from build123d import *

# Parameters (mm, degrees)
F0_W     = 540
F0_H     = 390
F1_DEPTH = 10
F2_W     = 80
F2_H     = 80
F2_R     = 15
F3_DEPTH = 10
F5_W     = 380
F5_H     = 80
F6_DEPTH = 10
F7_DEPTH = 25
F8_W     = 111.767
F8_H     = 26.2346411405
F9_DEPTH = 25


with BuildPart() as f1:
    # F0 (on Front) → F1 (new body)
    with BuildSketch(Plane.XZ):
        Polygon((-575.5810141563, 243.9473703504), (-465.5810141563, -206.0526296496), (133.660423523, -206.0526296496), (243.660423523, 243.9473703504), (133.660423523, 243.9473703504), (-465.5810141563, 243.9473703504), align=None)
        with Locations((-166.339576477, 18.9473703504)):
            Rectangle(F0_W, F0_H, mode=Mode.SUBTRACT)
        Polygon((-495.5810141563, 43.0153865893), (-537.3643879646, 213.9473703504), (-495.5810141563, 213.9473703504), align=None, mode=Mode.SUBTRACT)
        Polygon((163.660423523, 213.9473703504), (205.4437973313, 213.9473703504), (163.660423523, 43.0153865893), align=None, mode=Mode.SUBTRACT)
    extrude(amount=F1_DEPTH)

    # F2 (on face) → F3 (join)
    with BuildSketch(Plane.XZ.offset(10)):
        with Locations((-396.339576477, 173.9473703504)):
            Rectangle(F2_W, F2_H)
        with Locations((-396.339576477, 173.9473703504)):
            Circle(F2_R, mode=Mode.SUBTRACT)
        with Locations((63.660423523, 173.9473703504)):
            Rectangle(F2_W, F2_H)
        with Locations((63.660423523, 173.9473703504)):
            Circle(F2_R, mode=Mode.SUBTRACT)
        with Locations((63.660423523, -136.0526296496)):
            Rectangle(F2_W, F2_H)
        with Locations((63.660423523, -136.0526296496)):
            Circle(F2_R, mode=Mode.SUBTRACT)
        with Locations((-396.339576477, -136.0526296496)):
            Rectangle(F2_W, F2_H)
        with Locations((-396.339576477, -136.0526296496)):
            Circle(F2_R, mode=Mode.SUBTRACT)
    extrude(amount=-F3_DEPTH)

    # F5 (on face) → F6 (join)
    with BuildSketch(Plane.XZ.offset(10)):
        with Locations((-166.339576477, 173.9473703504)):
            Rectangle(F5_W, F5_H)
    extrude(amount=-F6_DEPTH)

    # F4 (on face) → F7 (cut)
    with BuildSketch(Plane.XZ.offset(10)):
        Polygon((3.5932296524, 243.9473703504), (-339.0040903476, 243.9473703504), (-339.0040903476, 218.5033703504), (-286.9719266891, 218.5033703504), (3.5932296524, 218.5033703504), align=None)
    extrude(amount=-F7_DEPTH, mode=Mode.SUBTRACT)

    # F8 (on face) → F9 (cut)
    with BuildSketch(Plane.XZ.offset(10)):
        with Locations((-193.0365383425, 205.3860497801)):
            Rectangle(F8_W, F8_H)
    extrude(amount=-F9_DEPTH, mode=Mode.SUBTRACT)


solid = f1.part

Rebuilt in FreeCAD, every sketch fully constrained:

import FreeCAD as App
import Part
import Sketcher

V = App.Vector


def add_polygon(sketch, points):
    """Adds a closed chain of lines whose ends are joined by coincident constraints."""
    first, n = sketch.GeometryCount, len(points)
    for a, b in zip(points, points[1:] + points[:1]):
        sketch.addGeometry(Part.LineSegment(App.Vector(*a, 0), App.Vector(*b, 0)), False)
    for i in range(n):
        sketch.addConstraint(Sketcher.Constraint("Coincident", first + i, 2, first + (i + 1) % n, 1))

doc = App.newDocument("Part")
params = doc.addObject("Spreadsheet::Sheet", "Params")
for row, (alias, value) in enumerate([
    ("sketch1_width", "540 mm"),
    ("sketch1_height", "390 mm"),
    ("pad1_length", "10 mm"),
    ("sketch2_diameter", "30 mm"),
    ("sketch2_width", "80 mm"),
    ("pad2_length", "10 mm"),
    ("sketch3_width", "380 mm"),
    ("sketch3_height", "80 mm"),
    ("pad3_length", "10 mm"),
    ("pocket1_length", "25 mm"),
    ("pocket2_length", "25 mm"),
], start=1):
    params.set(f"A{row}", alias)
    params.set(f"B{row}", "=" + value)
    params.setAlias(f"B{row}", alias)

body = doc.addObject("PartDesign::Body", "Body")

# Sketch on XZ plane
sketch1 = doc.addObject("Sketcher::SketchObject", "Sketch")
body.addObject(sketch1)
sketch1.AttachmentSupport = (doc.XZ_Plane, [""])
sketch1.MapMode = "FlatFace"
add_polygon(sketch1, [(-575.581014, 243.94737), (-465.581014, -206.05263), (133.660424, -206.05263), (243.660424, 243.94737)])  # lines 0-3
add_polygon(sketch1, [(103.660424, -176.05263), (-436.339576, -176.05263), (-436.339576, 213.94737), (103.660424, 213.94737)])  # lines 4-7
add_polygon(sketch1, [(-495.581014, 213.94737), (-495.581014, 43.015387), (-537.364388, 213.94737)])  # lines 8-10
add_polygon(sketch1, [(163.660424, 43.015387), (163.660424, 213.94737), (205.443797, 213.94737)])  # lines 11-13
sketch1.addConstraint([
    Sketcher.Constraint("Horizontal", 1),
    Sketcher.Constraint("Horizontal", 3),
    Sketcher.Constraint("Horizontal", 4),
    Sketcher.Constraint("Vertical", 5),
    Sketcher.Constraint("Horizontal", 6),
    Sketcher.Constraint("Vertical", 7),
    Sketcher.Constraint("Vertical", 8),
    Sketcher.Constraint("Horizontal", 10),
    Sketcher.Constraint("Vertical", 11),
    Sketcher.Constraint("Horizontal", 12),
    Sketcher.Constraint("Parallel", 0, 9),
    Sketcher.Constraint("Parallel", 2, 13),
    Sketcher.Constraint("Horizontal", 6, 2, 9, 2),
    Sketcher.Constraint("Horizontal", 10, 2, 11, 2),
    Sketcher.Constraint("Horizontal", 8, 2, 13, 2),
    Sketcher.Constraint("Equal", 10, 12),
    Sketcher.Constraint("DistanceX", 4, 2, 4, 1, 540.0),
    Sketcher.Constraint("DistanceY", 5, 1, 5, 2, 390.0),
    Sketcher.Constraint("DistanceX", 1, 2, 2, 2, 110.0),
    Sketcher.Constraint("DistanceY", 1, 2, 2, 2, 450.0),
    Sketcher.Constraint("DistanceY", 0, 2, 4, 2, 30.0),
    Sketcher.Constraint("DistanceX", 4, 2, 1, 2, 570.0),
    Sketcher.Constraint("DistanceX", 3, 2, 8, 2, 80.0),
    Sketcher.Constraint("DistanceX", 6, 2, 11, 2, 60.0),
    Sketcher.Constraint("Distance", 9, 175.96475),
    Sketcher.Constraint("DistanceX", 1, 1, 1, 2, 599.241438),
    Sketcher.Constraint("DistanceY", 0, 2, -1, 1, 206.05263),
    Sketcher.Constraint("DistanceX", 0, 2, -1, 1, 465.581014),
])
sketch1.setExpression("Constraints[30]", "Params.sketch1_width")
sketch1.setExpression("Constraints[31]", "Params.sketch1_height")
pad1 = doc.addObject("PartDesign::Pad", "Pad")
body.addObject(pad1)
pad1.Profile = sketch1
pad1.setExpression("Length", "Params.pad1_length")

# Sketch on XZ plane
sketch2 = doc.addObject("Sketcher::SketchObject", "Sketch001")
body.addObject(sketch2)
sketch2.AttachmentSupport = (doc.XZ_Plane, [""])
sketch2.MapMode = "FlatFace"
sketch2.AttachmentOffset = App.Placement(V(0, 0, 10), App.Rotation())
add_polygon(sketch2, [(-436.339576, 213.94737), (-436.339576, 133.94737), (-356.339576, 133.94737), (-356.339576, 213.94737)])  # lines 0-3
sketch2.addGeometry(Part.Circle(V(-396.339576, 173.94737, 0), V(0, 0, 1), 15), False)  # 4
add_polygon(sketch2, [(23.660424, 213.94737), (23.660424, 133.94737), (103.660424, 133.94737), (103.660424, 213.94737)])  # lines 5-8
sketch2.addGeometry(Part.Circle(V(63.660424, 173.94737, 0), V(0, 0, 1), 15), False)  # 9
add_polygon(sketch2, [(23.660424, -96.05263), (23.660424, -176.05263), (103.660424, -176.05263), (103.660424, -96.05263)])  # lines 10-13
sketch2.addGeometry(Part.Circle(V(63.660424, -136.05263, 0), V(0, 0, 1), 15), False)  # 14
add_polygon(sketch2, [(-436.339576, -96.05263), (-436.339576, -176.05263), (-356.339576, -176.05263), (-356.339576, -96.05263)])  # lines 15-18
sketch2.addGeometry(Part.Circle(V(-396.339576, -136.05263, 0), V(0, 0, 1), 15), False)  # 19
sketch2.addConstraint([
    Sketcher.Constraint("Vertical", 0),
    Sketcher.Constraint("Horizontal", 1),
    Sketcher.Constraint("Vertical", 2),
    Sketcher.Constraint("Horizontal", 3),
    Sketcher.Constraint("Vertical", 5),
    Sketcher.Constraint("Horizontal", 6),
    Sketcher.Constraint("Vertical", 7),
    Sketcher.Constraint("Horizontal", 8),
    Sketcher.Constraint("Vertical", 10),
    Sketcher.Constraint("Horizontal", 11),
    Sketcher.Constraint("Vertical", 12),
    Sketcher.Constraint("Horizontal", 13),
    Sketcher.Constraint("Vertical", 15),
    Sketcher.Constraint("Horizontal", 16),
    Sketcher.Constraint("Vertical", 17),
    Sketcher.Constraint("Horizontal", 18),
    Sketcher.Constraint("Equal", 4, 9),
    Sketcher.Constraint("Equal", 9, 14),
    Sketcher.Constraint("Equal", 14, 19),
    Sketcher.Constraint("Horizontal", 4, 3, 9, 3),
    Sketcher.Constraint("Horizontal", 14, 3, 19, 3),
    Sketcher.Constraint("Horizontal", 1, 2, 5, 2),
    Sketcher.Constraint("Horizontal", 3, 2, 7, 2),
    Sketcher.Constraint("Horizontal", 11, 2, 15, 2),
    Sketcher.Constraint("Horizontal", 13, 2, 17, 2),
    Sketcher.Constraint("Vertical", 9, 3, 14, 3),
    Sketcher.Constraint("Vertical", 4, 3, 19, 3),
    Sketcher.Constraint("Vertical", 8, 2, 10, 2),
    Sketcher.Constraint("Vertical", 7, 2, 11, 2),
    Sketcher.Constraint("Vertical", 3, 2, 15, 2),
    Sketcher.Constraint("Vertical", 2, 2, 16, 2),
    Sketcher.Constraint("Equal", 3, 6),
    Sketcher.Constraint("Equal", 18, 0),
    Sketcher.Constraint("Equal", 7, 10),
    Sketcher.Constraint("Diameter", 4, 30.0),
    Sketcher.Constraint("DistanceX", 1, 1, 1, 2, 80.0),
    Sketcher.Constraint("DistanceX", 4, 3, 9, 3, 460.0),
    Sketcher.Constraint("DistanceY", 14, 3, 9, 3, 310.0),
    Sketcher.Constraint("DistanceX", 0, 2, 4, 3, 40.0),
    Sketcher.Constraint("DistanceY", 0, 2, 4, 3, 40.0),
    Sketcher.Constraint("DistanceX", 5, 2, 9, 3, 40.0),
    Sketcher.Constraint("DistanceY", 10, 2, 14, 3, 40.0),
    Sketcher.Constraint("DistanceY", -1, 1, 4, 3, 173.94737),
    Sketcher.Constraint("DistanceX", 4, 3, -1, 1, 396.339576),
])
sketch2.setExpression("Constraints[50]", "Params.sketch2_diameter")
sketch2.setExpression("Constraints[51]", "Params.sketch2_width")
pad2 = doc.addObject("PartDesign::Pad", "Pad001")
body.addObject(pad2)
pad2.Profile = sketch2
pad2.setExpression("Length", "Params.pad2_length")
pad2.Reversed = True

# Sketch on XZ plane
sketch3 = doc.addObject("Sketcher::SketchObject", "Sketch002")
body.addObject(sketch3)
sketch3.AttachmentSupport = (doc.XZ_Plane, [""])
sketch3.MapMode = "FlatFace"
sketch3.AttachmentOffset = App.Placement(V(0, 0, 10), App.Rotation())
add_polygon(sketch3, [(-356.339576, 213.94737), (-356.339576, 133.94737), (23.660424, 133.94737), (23.660424, 213.94737)])  # lines 0-3
sketch3.addConstraint([
    Sketcher.Constraint("Vertical", 0),
    Sketcher.Constraint("Horizontal", 1),
    Sketcher.Constraint("Vertical", 2),
    Sketcher.Constraint("Horizontal", 3),
    Sketcher.Constraint("DistanceX", 1, 1, 1, 2, 380.0),
    Sketcher.Constraint("DistanceY", 0, 2, 0, 1, 80.0),
    Sketcher.Constraint("DistanceY", -1, 1, 0, 2, 133.94737),
    Sketcher.Constraint("DistanceX", 0, 2, -1, 1, 356.339576),
])
sketch3.setExpression("Constraints[8]", "Params.sketch3_width")
sketch3.setExpression("Constraints[9]", "Params.sketch3_height")
pad3 = doc.addObject("PartDesign::Pad", "Pad002")
body.addObject(pad3)
pad3.Profile = sketch3
pad3.setExpression("Length", "Params.pad3_length")
pad3.Reversed = True

# Sketch on XZ plane
sketch4 = doc.addObject("Sketcher::SketchObject", "Sketch003")
body.addObject(sketch4)
sketch4.AttachmentSupport = (doc.XZ_Plane, [""])
sketch4.MapMode = "FlatFace"
sketch4.AttachmentOffset = App.Placement(V(0, 0, 10), App.Rotation())
add_polygon(sketch4, [(3.59323, 243.94737), (-339.00409, 243.94737), (-339.00409, 218.50337), (3.59323, 218.50337)])  # lines 0-3
sketch4.addConstraint([
    Sketcher.Constraint("Horizontal", 0),
    Sketcher.Constraint("Vertical", 1),
    Sketcher.Constraint("Horizontal", 2),
    Sketcher.Constraint("Vertical", 3),
    Sketcher.Constraint("DistanceY", 1, 2, 1, 1, 25.444),
    Sketcher.Constraint("DistanceX", 0, 2, 0, 1, 342.59732),
    Sketcher.Constraint("DistanceX", 0, 2, -1, 1, 339.00409),
    Sketcher.Constraint("DistanceY", -1, 1, 0, 2, 243.94737),
])
pocket1 = doc.addObject("PartDesign::Pocket", "Pocket")
body.addObject(pocket1)
pocket1.Profile = sketch4
pocket1.setExpression("Length", "Params.pocket1_length")

# Sketch on XZ plane
sketch5 = doc.addObject("Sketcher::SketchObject", "Sketch004")
body.addObject(sketch5)
sketch5.AttachmentSupport = (doc.XZ_Plane, [""])
sketch5.MapMode = "FlatFace"
sketch5.AttachmentOffset = App.Placement(V(0, 0, 10), App.Rotation())
add_polygon(sketch5, [(-248.920038, 218.50337), (-248.920038, 192.268729), (-137.153038, 192.268729), (-137.153038, 218.50337)])  # lines 0-3
sketch5.addConstraint([
    Sketcher.Constraint("Vertical", 0),
    Sketcher.Constraint("Horizontal", 1),
    Sketcher.Constraint("Vertical", 2),
    Sketcher.Constraint("Horizontal", 3),
    Sketcher.Constraint("DistanceX", 1, 1, 1, 2, 111.767),
    Sketcher.Constraint("DistanceY", 0, 2, 0, 1, 26.234641),
    Sketcher.Constraint("DistanceX", 0, 2, -1, 1, 248.920038),
    Sketcher.Constraint("DistanceY", -1, 1, 0, 2, 192.268729),
])
pocket2 = doc.addObject("PartDesign::Pocket", "Pocket001")
body.addObject(pocket2)
pocket2.Profile = sketch5
pocket2.setExpression("Length", "Params.pocket2_length")

doc.recompute()
